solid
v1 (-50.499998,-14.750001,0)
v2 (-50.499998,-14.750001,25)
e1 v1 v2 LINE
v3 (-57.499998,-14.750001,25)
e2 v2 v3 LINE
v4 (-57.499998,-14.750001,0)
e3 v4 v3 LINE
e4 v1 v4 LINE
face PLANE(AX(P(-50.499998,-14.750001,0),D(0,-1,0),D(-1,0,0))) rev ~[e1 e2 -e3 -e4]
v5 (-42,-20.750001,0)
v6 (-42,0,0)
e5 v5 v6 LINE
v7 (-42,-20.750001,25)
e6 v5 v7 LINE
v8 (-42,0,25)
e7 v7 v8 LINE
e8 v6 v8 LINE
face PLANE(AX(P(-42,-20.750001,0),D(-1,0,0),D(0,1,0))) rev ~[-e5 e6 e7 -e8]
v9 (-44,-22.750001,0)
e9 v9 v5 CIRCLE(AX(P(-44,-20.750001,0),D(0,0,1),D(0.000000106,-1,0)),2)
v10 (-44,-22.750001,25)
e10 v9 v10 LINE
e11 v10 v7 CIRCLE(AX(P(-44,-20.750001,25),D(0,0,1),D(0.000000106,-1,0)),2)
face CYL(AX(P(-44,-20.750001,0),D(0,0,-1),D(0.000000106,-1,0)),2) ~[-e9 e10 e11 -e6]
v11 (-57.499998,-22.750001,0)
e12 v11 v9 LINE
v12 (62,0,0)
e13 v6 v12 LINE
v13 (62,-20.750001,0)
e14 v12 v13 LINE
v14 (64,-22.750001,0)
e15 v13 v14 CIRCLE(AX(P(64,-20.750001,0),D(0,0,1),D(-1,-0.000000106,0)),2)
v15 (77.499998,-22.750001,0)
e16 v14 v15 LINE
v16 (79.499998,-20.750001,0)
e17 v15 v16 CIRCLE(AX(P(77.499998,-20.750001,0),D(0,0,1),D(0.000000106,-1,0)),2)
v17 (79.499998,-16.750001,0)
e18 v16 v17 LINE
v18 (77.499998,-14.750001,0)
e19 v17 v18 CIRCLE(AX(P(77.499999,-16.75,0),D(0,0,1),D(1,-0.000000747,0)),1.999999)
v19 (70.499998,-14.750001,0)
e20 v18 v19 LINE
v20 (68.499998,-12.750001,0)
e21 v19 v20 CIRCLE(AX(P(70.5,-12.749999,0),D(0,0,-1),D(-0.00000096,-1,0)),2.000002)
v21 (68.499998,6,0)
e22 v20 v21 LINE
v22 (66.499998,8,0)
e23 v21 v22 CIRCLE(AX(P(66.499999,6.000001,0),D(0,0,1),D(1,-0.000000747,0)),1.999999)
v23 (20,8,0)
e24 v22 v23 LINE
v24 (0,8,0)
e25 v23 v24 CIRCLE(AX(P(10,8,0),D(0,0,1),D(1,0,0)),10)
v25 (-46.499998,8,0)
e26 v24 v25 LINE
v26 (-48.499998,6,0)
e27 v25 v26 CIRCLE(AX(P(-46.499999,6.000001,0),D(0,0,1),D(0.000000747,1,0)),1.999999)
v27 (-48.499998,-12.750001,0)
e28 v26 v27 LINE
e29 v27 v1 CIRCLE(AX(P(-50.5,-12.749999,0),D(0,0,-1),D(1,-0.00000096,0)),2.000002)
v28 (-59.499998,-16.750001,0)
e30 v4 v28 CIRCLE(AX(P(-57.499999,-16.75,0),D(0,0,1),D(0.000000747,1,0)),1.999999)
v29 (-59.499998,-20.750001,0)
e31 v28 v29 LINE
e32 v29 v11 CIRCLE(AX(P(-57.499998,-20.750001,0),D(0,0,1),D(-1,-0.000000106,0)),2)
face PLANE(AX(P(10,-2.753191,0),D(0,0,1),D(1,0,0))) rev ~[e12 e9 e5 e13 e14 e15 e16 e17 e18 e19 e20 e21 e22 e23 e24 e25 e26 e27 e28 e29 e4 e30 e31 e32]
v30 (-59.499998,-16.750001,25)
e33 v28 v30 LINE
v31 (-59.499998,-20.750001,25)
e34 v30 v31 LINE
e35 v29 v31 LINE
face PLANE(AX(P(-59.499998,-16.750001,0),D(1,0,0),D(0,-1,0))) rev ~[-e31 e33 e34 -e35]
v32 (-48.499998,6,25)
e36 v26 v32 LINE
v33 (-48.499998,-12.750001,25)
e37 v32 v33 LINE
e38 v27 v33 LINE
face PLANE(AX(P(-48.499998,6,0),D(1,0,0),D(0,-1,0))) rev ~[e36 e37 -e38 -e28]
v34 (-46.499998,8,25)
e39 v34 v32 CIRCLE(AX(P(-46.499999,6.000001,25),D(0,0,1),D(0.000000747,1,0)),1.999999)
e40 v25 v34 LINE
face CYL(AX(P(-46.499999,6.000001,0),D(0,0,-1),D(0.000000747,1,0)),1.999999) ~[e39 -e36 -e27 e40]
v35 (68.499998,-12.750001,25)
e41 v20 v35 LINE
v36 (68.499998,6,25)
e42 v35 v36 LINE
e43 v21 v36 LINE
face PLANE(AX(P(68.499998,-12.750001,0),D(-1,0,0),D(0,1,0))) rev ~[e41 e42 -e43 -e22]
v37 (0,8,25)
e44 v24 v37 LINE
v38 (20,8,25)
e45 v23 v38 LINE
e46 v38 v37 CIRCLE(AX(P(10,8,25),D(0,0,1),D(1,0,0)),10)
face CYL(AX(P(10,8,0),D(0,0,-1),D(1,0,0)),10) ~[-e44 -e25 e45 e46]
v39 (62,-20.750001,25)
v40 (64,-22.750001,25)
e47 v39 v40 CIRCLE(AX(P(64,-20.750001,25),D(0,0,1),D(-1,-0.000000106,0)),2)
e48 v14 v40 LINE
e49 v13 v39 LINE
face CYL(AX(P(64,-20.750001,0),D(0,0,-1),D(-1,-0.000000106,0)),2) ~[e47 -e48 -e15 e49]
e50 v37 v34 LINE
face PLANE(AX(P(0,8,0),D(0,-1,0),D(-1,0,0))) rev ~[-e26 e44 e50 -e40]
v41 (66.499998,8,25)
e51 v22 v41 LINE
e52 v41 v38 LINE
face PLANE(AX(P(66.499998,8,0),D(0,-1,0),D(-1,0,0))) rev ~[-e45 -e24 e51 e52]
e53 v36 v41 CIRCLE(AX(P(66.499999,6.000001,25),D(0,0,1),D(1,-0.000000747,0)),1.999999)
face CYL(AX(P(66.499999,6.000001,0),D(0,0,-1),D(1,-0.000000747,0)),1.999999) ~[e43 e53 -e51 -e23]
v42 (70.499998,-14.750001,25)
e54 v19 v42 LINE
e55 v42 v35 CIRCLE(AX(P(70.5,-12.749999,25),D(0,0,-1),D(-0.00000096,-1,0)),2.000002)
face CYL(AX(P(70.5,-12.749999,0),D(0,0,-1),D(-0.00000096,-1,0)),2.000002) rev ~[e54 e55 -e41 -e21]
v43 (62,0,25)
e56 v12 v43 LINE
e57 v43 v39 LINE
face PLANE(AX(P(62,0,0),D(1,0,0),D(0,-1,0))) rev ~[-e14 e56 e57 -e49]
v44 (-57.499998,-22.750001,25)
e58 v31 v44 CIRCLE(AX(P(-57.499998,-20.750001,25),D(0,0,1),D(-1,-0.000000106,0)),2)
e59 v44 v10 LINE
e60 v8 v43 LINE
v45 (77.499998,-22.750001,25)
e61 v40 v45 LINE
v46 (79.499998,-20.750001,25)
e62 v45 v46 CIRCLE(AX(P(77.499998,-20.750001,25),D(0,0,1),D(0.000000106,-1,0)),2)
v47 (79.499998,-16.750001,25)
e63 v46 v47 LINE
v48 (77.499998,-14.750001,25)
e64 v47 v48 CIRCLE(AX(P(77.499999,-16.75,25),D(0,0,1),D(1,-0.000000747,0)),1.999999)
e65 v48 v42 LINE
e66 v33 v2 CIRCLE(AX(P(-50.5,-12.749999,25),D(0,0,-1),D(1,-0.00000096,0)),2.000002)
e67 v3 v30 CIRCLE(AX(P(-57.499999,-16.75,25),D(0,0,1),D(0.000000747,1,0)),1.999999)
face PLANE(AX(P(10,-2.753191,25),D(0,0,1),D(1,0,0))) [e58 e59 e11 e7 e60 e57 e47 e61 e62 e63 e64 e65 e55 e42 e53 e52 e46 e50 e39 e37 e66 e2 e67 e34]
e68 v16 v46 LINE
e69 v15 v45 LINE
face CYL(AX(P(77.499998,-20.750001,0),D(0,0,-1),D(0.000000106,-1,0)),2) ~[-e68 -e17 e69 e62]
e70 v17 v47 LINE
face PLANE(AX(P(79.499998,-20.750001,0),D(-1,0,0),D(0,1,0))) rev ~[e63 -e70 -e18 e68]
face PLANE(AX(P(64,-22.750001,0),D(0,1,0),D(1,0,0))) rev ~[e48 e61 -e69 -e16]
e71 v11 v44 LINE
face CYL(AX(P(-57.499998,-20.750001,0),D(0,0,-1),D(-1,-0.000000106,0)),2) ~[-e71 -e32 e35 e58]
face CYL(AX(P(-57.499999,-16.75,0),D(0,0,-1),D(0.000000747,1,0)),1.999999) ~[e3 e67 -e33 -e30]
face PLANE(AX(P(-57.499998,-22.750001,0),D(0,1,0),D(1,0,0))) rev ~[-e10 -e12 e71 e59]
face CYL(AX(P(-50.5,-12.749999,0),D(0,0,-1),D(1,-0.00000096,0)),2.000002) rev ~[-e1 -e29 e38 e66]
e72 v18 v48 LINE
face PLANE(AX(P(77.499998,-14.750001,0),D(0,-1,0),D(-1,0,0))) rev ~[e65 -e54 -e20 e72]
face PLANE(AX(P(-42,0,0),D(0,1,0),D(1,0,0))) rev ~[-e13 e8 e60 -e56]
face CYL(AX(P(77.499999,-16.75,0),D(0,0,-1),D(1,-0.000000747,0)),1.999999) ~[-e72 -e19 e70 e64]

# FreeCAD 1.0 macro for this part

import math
import FreeCAD as App
import Part
import Sketcher
from FreeCAD import Vector

doc = App.newDocument("Part")
params = doc.addObject("Spreadsheet::Sheet", "Params")
for row, (alias, value) in enumerate([
    ("sketch1_radius", "2 mm"),
    ("sketch1_radius2", "10 mm"),
    ("sketch1_width", "104 mm"),
    ("sketch1_width2", "7 mm"),
    ("sketch1_height", "4 mm"),
    ("pad1_length", "25 mm"),
], start=1):
    params.set(f"A{row}", alias)
    params.set(f"B{row}", "=" + value)
    params.setAlias(f"B{row}", alias)

body = doc.addObject("PartDesign::Body", "Body")

sketch1 = body.newObject("Sketcher::SketchObject", "Sketch")
sketch1.AttachmentSupport = (doc.getObject("XY_Plane"), [""])
sketch1.MapMode = "FlatFace"
sketch1.addGeometry(Part.LineSegment(Vector(-42, 0, 0), Vector(62, 0, 0)), False)
sketch1.addGeometry(Part.LineSegment(Vector(62, 0, 0), Vector(62, -20.8, 0)), False)
sketch1.addGeometry(Part.ArcOfCircle(Part.Circle(Vector(64, -20.8, 0), Vector(0, 0, 1), 2), math.radians(-180), math.radians(-90)), False)
sketch1.addGeometry(Part.LineSegment(Vector(64, -22.8, 0), Vector(77.5, -22.8, 0)), False)
sketch1.addGeometry(Part.ArcOfCircle(Part.Circle(Vector(77.5, -20.8, 0), Vector(0, 0, 1), 2), math.radians(-90), math.radians(0)), False)
sketch1.addGeometry(Part.LineSegment(Vector(79.5, -20.8, 0), Vector(79.5, -16.8, 0)), False)
sketch1.addGeometry(Part.ArcOfCircle(Part.Circle(Vector(77.5, -16.7, 0), Vector(0, 0, 1), 2), math.radians(0), math.radians(90)), False)
sketch1.addGeometry(Part.LineSegment(Vector(77.5, -14.8, 0), Vector(70.5, -14.8, 0)), False)
sketch1.addGeometry(Part.ArcOfCircle(Part.Circle(Vector(70.5, -12.7, 0), Vector(0, 0, 1), 2), math.radians(-180), math.radians(-90)), False)
sketch1.addGeometry(Part.LineSegment(Vector(68.5, -12.8, 0), Vector(68.5, 6, 0)), False)
sketch1.addGeometry(Part.ArcOfCircle(Part.Circle(Vector(66.5, 6, 0), Vector(0, 0, 1), 2), math.radians(0), math.radians(90)), False)
sketch1.addGeometry(Part.LineSegment(Vector(66.5, 8, 0), Vector(20, 8, 0)), False)
sketch1.addGeometry(Part.ArcOfCircle(Part.Circle(Vector(10, 8, 0), Vector(0, 0, 1), 10), math.radians(0), math.radians(180)), False)
sketch1.addGeometry(Part.LineSegment(Vector(0, 8, 0), Vector(-46.5, 8, 0)), False)
sketch1.addGeometry(Part.ArcOfCircle(Part.Circle(Vector(-46.5, 6, 0), Vector(0, 0, 1), 2), math.radians(90), math.radians(180)), False)
sketch1.addGeometry(Part.LineSegment(Vector(-48.5, 6, 0), Vector(-48.5, -12.8, 0)), False)
sketch1.addGeometry(Part.ArcOfCircle(Part.Circle(Vector(-50.5, -12.7, 0), Vector(0, 0, 1), 2), math.radians(-90), math.radians(0)), False)
sketch1.addGeometry(Part.LineSegment(Vector(-50.5, -14.8, 0), Vector(-57.5, -14.8, 0)), False)
sketch1.addGeometry(Part.ArcOfCircle(Part.Circle(Vector(-57.5, -16.7, 0), Vector(0, 0, 1), 2), math.radians(90), math.radians(180)), False)
sketch1.addGeometry(Part.LineSegment(Vector(-59.5, -16.8, 0), Vector(-59.5, -20.8, 0)), False)
sketch1.addGeometry(Part.ArcOfCircle(Part.Circle(Vector(-57.5, -20.8, 0), Vector(0, 0, 1), 2), math.radians(-180), math.radians(-90)), False)
sketch1.addGeometry(Part.LineSegment(Vector(-57.5, -22.8, 0), Vector(-44, -22.8, 0)), False)
sketch1.addGeometry(Part.ArcOfCircle(Part.Circle(Vector(-44, -20.8, 0), Vector(0, 0, 1), 2), math.radians(-90), math.radians(0)), False)
sketch1.addGeometry(Part.LineSegment(Vector(-42, -20.8, 0), Vector(-42, 0, 0)), False)
sketch1.addConstraint(Sketcher.Constraint("Coincident", 0, 2, 1, 1))
sketch1.addConstraint(Sketcher.Constraint("Tangent", 1, 2, 2, 1))
sketch1.addConstraint(Sketcher.Constraint("Tangent", 2, 2, 3, 1))
sketch1.addConstraint(Sketcher.Constraint("Tangent", 3, 2, 4, 1))
sketch1.addConstraint(Sketcher.Constraint("Tangent", 4, 2, 5, 1))
sketch1.addConstraint(Sketcher.Constraint("Tangent", 5, 2, 6, 1))
sketch1.addConstraint(Sketcher.Constraint("Tangent", 6, 2, 7, 1))
sketch1.addConstraint(Sketcher.Constraint("Tangent", 7, 2, 8, 2))
sketch1.addConstraint(Sketcher.Constraint("Tangent", 8, 1, 9, 1))
sketch1.addConstraint(Sketcher.Constraint("Tangent", 9, 2, 10, 1))
sketch1.addConstraint(Sketcher.Constraint("Tangent", 10, 2, 11, 1))
sketch1.addConstraint(Sketcher.Constraint("Coincident", 11, 2, 12, 1))
sketch1.addConstraint(Sketcher.Constraint("Coincident", 12, 2, 13, 1))
sketch1.addConstraint(Sketcher.Constraint("Tangent", 13, 2, 14, 1))
sketch1.addConstraint(Sketcher.Constraint("Tangent", 14, 2, 15, 1))
sketch1.addConstraint(Sketcher.Constraint("Tangent", 15, 2, 16, 2))
sketch1.addConstraint(Sketcher.Constraint("Tangent", 16, 1, 17, 1))
sketch1.addConstraint(Sketcher.Constraint("Tangent", 17, 2, 18, 1))
sketch1.addConstraint(Sketcher.Constraint("Tangent", 18, 2, 19, 1))
sketch1.addConstraint(Sketcher.Constraint("Tangent", 19, 2, 20, 1))
sketch1.addConstraint(Sketcher.Constraint("Tangent", 20, 2, 21, 1))
sketch1.addConstraint(Sketcher.Constraint("Tangent", 21, 2, 22, 1))
sketch1.addConstraint(Sketcher.Constraint("Tangent", 22, 2, 23, 1))
sketch1.addConstraint(Sketcher.Constraint("Coincident", 23, 2, 0, 1))
sketch1.addConstraint(Sketcher.Constraint("Horizontal", 0))
sketch1.addConstraint(Sketcher.Constraint("Vertical", 1))
sketch1.addConstraint(Sketcher.Constraint("Horizontal", 3))
sketch1.addConstraint(Sketcher.Constraint("Vertical", 5))
sketch1.addConstraint(Sketcher.Constraint("Horizontal", 7))
sketch1.addConstraint(Sketcher.Constraint("Vertical", 9))
sketch1.addConstraint(Sketcher.Constraint("Horizontal", 11))
sketch1.addConstraint(Sketcher.Constraint("Horizontal", 13))
sketch1.addConstraint(Sketcher.Constraint("Vertical", 15))
sketch1.addConstraint(Sketcher.Constraint("Horizontal", 17))
sketch1.addConstraint(Sketcher.Constraint("Vertical", 19))
sketch1.addConstraint(Sketcher.Constraint("Horizontal", 21))
sketch1.addConstraint(Sketcher.Constraint("Vertical", 23))
sketch1.addConstraint(Sketcher.Constraint("Equal", 2, 4))
sketch1.addConstraint(Sketcher.Constraint("Equal", 4, 6))
sketch1.addConstraint(Sketcher.Constraint("Equal", 4, 8))
sketch1.addConstraint(Sketcher.Constraint("Equal", 6, 10))
sketch1.addConstraint(Sketcher.Constraint("Equal", 10, 14))
sketch1.addConstraint(Sketcher.Constraint("Equal", 8, 16))
sketch1.addConstraint(Sketcher.Constraint("Equal", 14, 18))
sketch1.addConstraint(Sketcher.Constraint("Equal", 18, 20))
sketch1.addConstraint(Sketcher.Constraint("Equal", 20, 22))
sketch1.addConstraint(Sketcher.Constraint("PointOnObject", 0, 2, -1))
sketch1.addConstraint(Sketcher.Constraint("PointOnObject", 12, 2, -2))
sketch1.addConstraint(Sketcher.Constraint("Horizontal", 10, 3, 14, 3))
sketch1.addConstraint(Sketcher.Constraint("Horizontal", 8, 3, 16, 3))
sketch1.addConstraint(Sketcher.Constraint("Horizontal", 4, 3, 20, 3))
sketch1.addConstraint(Sketcher.Constraint("Horizontal", 12, 3, 10, 2))
sketch1.addConstraint(Sketcher.Constraint("Equal", 11, 13))
sketch1.addConstraint(Sketcher.Constraint("Equal", 7, 17))
sketch1.addConstraint(Sketcher.Constraint("Equal", 3, 21))
sketch1.addConstraint(Sketcher.Constraint("Radius", 2, 2.0))
sketch1.addConstraint(Sketcher.Constraint("Radius", 12, 10.0))
sketch1.addConstraint(Sketcher.Constraint("DistanceX", 0, 1, 0, 2, 104.0))
sketch1.addConstraint(Sketcher.Constraint("DistanceX", 7, 2, 7, 1, 7.0))
sketch1.addConstraint(Sketcher.Constraint("DistanceY", 5, 1, 5, 2, 4.0))
sketch1.addConstraint(Sketcher.Constraint("DistanceX", 3, 1, 3, 2, 13.499998))
sketch1.addConstraint(Sketcher.Constraint("DistanceY", -1, 1, 10, 3, 6.000001))
sketch1.addConstraint(Sketcher.Constraint("DistanceY", 1, 2, 1, 1, 20.750001))
sketch1.setExpression("Constraints[55]", "Params.sketch1_radius")
sketch1.setExpression("Constraints[56]", "Params.sketch1_radius2")
sketch1.setExpression("Constraints[57]", "Params.sketch1_width")
sketch1.setExpression("Constraints[58]", "Params.sketch1_width2")
sketch1.setExpression("Constraints[59]", "Params.sketch1_height")
pad1 = body.newObject("PartDesign::Pad", "Pad")
pad1.Profile = sketch1
pad1.setExpression("Length", "Params.pad1_length")

doc.recompute()
